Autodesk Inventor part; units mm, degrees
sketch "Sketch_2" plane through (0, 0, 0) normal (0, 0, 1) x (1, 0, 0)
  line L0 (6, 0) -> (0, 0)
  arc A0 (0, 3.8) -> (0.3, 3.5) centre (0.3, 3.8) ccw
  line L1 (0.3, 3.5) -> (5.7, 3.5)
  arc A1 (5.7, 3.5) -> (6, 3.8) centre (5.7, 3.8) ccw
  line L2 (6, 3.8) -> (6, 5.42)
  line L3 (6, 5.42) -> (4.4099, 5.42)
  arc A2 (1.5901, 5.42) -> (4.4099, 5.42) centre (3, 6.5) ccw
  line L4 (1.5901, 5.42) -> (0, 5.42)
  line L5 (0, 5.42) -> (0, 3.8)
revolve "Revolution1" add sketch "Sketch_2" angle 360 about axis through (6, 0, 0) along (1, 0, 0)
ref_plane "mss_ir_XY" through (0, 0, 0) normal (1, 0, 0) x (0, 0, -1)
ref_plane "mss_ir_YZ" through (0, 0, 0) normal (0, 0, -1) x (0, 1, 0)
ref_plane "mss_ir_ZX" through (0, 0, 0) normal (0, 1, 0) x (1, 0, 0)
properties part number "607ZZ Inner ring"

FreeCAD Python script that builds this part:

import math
import FreeCAD as App
import Part
import Sketcher
from FreeCAD import Vector

doc = App.newDocument("Part")
body = doc.addObject("PartDesign::Body", "Body")

# Sketch on XY plane
sketch1 = body.newObject("Sketcher::SketchObject", "Sketch")
sketch1.AttachmentSupport = (doc.getObject("XY_Plane"), [""])
sketch1.MapMode = "FlatFace"
sketch1.addGeometry(Part.LineSegment(Vector(0, 5.42, 0), Vector(0, 3.8, 0)), False)
sketch1.addGeometry(Part.ArcOfCircle(Part.Circle(Vector(0.3, 3.8, 0), Vector(0, 0, 1), 0.3), math.radians(180), math.radians(270)), False)
sketch1.addGeometry(Part.LineSegment(Vector(0.3, 3.5, 0), Vector(5.7, 3.5, 0)), False)
sketch1.addGeometry(Part.ArcOfCircle(Part.Circle(Vector(5.7, 3.8, 0), Vector(0, 0, 1), 0.3), math.radians(-90), math.radians(0)), False)
sketch1.addGeometry(Part.LineSegment(Vector(6, 3.8, 0), Vector(6, 5.42, 0)), False)
sketch1.addGeometry(Part.LineSegment(Vector(6, 5.42, 0), Vector(4.41, 5.42, 0)), False)
sketch1.addGeometry(Part.ArcOfCircle(Part.Circle(Vector(3, 6.5, 0), Vector(0, 0, 1), 1.78), math.radians(-143), math.radians(-37)), False)
sketch1.addGeometry(Part.LineSegment(Vector(1.59, 5.42, 0), Vector(0, 5.42, 0)), False)
sketch1.addConstraint(Sketcher.Constraint("Tangent", 0, 2, 1, 1))
sketch1.addConstraint(Sketcher.Constraint("Tangent", 1, 2, 2, 1))
sketch1.addConstraint(Sketcher.Constraint("Tangent", 2, 2, 3, 1))
sketch1.addConstraint(Sketcher.Constraint("Tangent", 3, 2, 4, 1))
sketch1.addConstraint(Sketcher.Constraint("Coincident", 4, 2, 5, 1))
sketch1.addConstraint(Sketcher.Constraint("Coincident", 5, 2, 6, 2))
sketch1.addConstraint(Sketcher.Constraint("Coincident", 6, 1, 7, 1))
sketch1.addConstraint(Sketcher.Constraint("Coincident", 7, 2, 0, 1))
sketch1.addConstraint(Sketcher.Constraint("Vertical", 0))
sketch1.addConstraint(Sketcher.Constraint("Horizontal", 2))
sketch1.addConstraint(Sketcher.Constraint("Vertical", 4))
sketch1.addConstraint(Sketcher.Constraint("Horizontal", 5))
sketch1.addConstraint(Sketcher.Constraint("Horizontal", 7))
sketch1.addConstraint(Sketcher.Constraint("Equal", 1, 3))
sketch1.addConstraint(Sketcher.Constraint("PointOnObject", 0, 2, -2))
sketch1.addConstraint(Sketcher.Constraint("Horizontal", 5, 2, 6, 1))
sketch1.addConstraint(Sketcher.Constraint("Equal", 5, 7))
sketch1.addConstraint(Sketcher.Constraint("Radius", 1, 0.3))
sketch1.addConstraint(Sketcher.Constraint("DistanceX", 2, 1, 2, 2, 5.4))
sketch1.addConstraint(Sketcher.Constraint("Radius", 6, 1.776))
sketch1.addConstraint(Sketcher.Constraint("DistanceY", 1, 2, 6, 3, 3.0))
sketch1.addConstraint(Sketcher.Constraint("DistanceX", 5, 2, 5, 1, 1.59))
sketch1.addConstraint(Sketcher.Constraint("DistanceY", -1, 1, 1, 3, 3.8))
revolution = body.newObject("PartDesign::Revolution", "Revolution")
revolution.Profile = sketch1
revolution.ReferenceAxis = (sketch1, ["H_Axis"])
revolution.Angle = 360

doc.recompute()
